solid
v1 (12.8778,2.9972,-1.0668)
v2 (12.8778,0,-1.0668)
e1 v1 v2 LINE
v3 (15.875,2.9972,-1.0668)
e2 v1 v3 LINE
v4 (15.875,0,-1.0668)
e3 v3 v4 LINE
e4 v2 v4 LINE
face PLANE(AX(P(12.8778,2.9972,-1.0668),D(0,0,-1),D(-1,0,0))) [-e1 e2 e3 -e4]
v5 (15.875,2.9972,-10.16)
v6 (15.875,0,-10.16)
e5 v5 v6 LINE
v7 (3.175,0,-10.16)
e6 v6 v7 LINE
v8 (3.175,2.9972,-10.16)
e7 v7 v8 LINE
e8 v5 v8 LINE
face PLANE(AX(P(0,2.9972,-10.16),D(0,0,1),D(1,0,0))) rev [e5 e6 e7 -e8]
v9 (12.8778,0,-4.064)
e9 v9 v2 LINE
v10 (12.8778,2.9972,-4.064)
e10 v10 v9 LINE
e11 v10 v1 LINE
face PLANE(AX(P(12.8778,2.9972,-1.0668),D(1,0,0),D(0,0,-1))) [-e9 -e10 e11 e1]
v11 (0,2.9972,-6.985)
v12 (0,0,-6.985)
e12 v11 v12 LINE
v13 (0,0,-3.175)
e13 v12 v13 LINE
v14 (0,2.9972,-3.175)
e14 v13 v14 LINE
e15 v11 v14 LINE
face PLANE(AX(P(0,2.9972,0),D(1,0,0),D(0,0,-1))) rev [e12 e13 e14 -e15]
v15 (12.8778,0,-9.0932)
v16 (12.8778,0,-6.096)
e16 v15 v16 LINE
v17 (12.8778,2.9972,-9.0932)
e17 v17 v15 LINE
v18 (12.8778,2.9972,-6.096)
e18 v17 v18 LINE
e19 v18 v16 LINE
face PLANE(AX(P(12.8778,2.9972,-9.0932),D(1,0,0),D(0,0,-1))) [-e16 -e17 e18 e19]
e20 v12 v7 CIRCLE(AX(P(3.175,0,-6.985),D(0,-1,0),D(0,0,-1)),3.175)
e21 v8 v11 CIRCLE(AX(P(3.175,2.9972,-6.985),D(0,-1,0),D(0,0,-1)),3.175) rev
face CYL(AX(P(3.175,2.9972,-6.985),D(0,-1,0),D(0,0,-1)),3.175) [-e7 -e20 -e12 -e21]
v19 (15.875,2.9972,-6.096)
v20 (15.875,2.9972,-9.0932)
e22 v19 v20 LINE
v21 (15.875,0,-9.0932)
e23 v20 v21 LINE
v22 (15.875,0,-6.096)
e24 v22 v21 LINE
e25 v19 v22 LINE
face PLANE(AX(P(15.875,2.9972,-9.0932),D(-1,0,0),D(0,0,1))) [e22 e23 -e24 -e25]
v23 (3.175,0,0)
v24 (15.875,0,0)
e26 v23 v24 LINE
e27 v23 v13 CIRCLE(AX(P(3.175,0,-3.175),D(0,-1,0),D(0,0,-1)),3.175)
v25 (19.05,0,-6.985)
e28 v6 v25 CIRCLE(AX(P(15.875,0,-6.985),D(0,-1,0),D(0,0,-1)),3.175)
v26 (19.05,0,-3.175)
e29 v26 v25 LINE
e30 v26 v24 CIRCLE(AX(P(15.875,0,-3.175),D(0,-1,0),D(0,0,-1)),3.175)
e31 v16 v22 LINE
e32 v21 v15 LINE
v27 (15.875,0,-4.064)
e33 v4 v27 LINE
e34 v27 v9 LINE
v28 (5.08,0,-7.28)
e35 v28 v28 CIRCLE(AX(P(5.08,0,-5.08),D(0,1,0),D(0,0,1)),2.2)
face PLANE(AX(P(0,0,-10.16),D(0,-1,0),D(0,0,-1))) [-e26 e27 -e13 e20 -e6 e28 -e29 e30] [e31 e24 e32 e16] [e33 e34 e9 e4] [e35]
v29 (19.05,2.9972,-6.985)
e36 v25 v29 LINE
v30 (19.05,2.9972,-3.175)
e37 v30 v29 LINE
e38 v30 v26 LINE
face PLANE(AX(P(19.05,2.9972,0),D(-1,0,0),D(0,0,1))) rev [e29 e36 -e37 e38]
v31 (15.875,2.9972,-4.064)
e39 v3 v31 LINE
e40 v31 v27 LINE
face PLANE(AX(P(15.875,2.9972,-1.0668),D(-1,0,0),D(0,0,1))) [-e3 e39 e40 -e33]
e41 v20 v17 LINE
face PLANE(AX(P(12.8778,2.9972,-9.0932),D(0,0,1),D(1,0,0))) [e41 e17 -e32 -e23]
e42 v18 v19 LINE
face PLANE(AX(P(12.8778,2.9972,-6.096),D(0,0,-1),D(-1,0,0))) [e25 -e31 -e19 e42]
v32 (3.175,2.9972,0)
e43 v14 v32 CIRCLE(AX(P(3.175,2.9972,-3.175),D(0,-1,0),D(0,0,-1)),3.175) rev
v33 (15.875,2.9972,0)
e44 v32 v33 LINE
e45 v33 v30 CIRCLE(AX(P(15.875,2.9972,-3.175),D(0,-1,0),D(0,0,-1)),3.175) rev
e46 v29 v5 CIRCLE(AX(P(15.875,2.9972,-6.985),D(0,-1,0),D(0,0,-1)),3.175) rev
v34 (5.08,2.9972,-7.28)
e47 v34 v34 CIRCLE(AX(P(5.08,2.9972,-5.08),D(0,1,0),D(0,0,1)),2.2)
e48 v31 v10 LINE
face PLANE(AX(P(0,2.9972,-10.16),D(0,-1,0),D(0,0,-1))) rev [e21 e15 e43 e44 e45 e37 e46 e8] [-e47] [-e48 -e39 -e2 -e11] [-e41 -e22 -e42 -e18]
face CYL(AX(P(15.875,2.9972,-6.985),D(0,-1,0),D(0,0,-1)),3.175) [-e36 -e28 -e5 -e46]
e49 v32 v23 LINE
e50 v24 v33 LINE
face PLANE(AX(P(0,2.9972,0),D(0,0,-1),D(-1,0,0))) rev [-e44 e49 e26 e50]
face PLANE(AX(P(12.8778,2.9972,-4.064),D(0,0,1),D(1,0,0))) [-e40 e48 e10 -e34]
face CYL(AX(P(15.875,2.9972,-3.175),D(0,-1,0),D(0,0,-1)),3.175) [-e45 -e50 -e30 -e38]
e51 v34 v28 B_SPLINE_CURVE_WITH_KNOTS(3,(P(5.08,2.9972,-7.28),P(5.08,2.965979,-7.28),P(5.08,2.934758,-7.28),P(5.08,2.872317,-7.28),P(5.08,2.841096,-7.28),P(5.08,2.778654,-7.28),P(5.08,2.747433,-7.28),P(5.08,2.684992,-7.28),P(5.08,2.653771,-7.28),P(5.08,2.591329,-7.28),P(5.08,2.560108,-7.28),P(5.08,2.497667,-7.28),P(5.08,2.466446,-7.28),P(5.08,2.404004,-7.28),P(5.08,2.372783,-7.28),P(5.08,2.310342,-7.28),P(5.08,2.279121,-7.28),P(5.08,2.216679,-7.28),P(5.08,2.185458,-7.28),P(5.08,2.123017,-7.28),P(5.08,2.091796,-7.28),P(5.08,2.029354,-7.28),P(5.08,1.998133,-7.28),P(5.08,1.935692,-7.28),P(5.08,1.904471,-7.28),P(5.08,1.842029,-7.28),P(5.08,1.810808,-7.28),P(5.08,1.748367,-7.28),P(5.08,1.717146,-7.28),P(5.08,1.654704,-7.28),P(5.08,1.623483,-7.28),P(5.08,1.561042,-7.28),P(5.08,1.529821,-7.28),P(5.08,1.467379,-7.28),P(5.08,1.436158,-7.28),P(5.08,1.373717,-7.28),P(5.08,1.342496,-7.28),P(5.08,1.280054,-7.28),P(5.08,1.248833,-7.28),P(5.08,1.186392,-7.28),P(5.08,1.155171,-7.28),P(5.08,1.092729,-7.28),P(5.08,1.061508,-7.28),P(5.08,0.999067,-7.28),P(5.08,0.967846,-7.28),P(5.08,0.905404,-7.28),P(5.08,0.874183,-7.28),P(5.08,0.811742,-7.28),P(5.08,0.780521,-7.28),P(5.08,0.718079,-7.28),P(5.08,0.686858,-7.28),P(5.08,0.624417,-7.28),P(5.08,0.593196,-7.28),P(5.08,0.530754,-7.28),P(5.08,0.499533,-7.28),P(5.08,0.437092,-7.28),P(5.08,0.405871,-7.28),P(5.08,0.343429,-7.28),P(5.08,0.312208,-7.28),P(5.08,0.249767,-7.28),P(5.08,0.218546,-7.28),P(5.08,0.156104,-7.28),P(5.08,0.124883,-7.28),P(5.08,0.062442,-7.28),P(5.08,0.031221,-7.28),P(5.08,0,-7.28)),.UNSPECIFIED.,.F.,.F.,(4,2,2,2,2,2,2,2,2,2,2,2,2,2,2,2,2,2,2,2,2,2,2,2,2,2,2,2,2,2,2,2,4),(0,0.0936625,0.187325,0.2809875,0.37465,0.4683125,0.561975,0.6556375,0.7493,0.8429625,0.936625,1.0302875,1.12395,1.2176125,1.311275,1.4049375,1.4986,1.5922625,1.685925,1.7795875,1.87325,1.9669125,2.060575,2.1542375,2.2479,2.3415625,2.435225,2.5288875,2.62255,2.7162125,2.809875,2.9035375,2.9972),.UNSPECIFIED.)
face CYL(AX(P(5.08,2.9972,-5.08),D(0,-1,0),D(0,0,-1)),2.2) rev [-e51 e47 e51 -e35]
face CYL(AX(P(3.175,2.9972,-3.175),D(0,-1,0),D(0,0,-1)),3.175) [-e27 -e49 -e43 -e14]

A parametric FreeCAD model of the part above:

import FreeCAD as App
import Part
import Sketcher
from FreeCAD import Vector
Q = App.Units.Quantity


def edges_at(feature, points):
    """Names of the edges that pass closest to the given points."""
    edges = feature.Shape.Edges
    near = lambda p: min(range(len(edges)), key=lambda i: edges[i].distToShape(Part.Vertex(*p))[0])
    return sorted({f"Edge{near(p) + 1}" for p in points})


def add_polygon(sketch, points):
    """Adds a closed chain of lines whose ends are joined by coincident constraints."""
    first, n = sketch.GeometryCount, len(points)
    for a, b in zip(points, points[1:] + points[:1]):
        sketch.addGeometry(Part.LineSegment(App.Vector(*a, 0), App.Vector(*b, 0)), False)
    for i in range(n):
        sketch.addConstraint(Sketcher.Constraint("Coincident", first + i, 2, first + (i + 1) % n, 1))

doc = App.newDocument("Part")
params = doc.addObject("Spreadsheet::Sheet", "Params")
for row, (alias, value) in enumerate([
    ("sketch1_height", "0.4 in"),
    ("sketch1_width", "0.75 in"),
    ("sketch1_width2", "0.118 in"),
    ("pad1_length", "0.118 in"),
    ("fillet_radius", "0.125 in"),
], start=1):
    params.set(f"A{row}", alias)
    params.set(f"B{row}", "=" + value)
    params.setAlias(f"B{row}", alias)

body = doc.addObject("PartDesign::Body", "Body")

sketch1 = doc.addObject("Sketcher::SketchObject", "Sketch")
body.addObject(sketch1)
sketch1.AttachmentSupport = (doc.XZ_Plane, [""])
sketch1.MapMode = "FlatFace"
add_polygon(sketch1, [(0, -10.16), (0, 0), (19.05, 0), (19.05, -10.16)])
add_polygon(sketch1, [(15.875, -1.0668), (12.8778, -1.0668), (12.8778, -4.064), (15.875, -4.064)])
sketch1.addGeometry(Part.Circle(Vector(5.08, -5.08, 0), Vector(0, 0, 1), 2.2), False)
add_polygon(sketch1, [(15.875, -6.096), (12.8778, -6.096), (12.8778, -9.0932), (15.875, -9.0932)])
sketch1.addConstraint([
    Sketcher.Constraint("Vertical", 0),
    Sketcher.Constraint("Horizontal", 1),
    Sketcher.Constraint("Vertical", 2),
    Sketcher.Constraint("Horizontal", 3),
    Sketcher.Constraint("Horizontal", 4),
    Sketcher.Constraint("Vertical", 5),
    Sketcher.Constraint("Horizontal", 6),
    Sketcher.Constraint("Vertical", 7),
    Sketcher.Constraint("Horizontal", 9),
    Sketcher.Constraint("Vertical", 10),
    Sketcher.Constraint("Horizontal", 11),
    Sketcher.Constraint("Vertical", 12),
    Sketcher.Constraint("Coincident", 0, 2, -1, 1),
    Sketcher.Constraint("Vertical", 5, 2, 9, 2),
    Sketcher.Constraint("Vertical", 7, 2, 11, 2),
    Sketcher.Constraint("Equal", 11, 5),
    Sketcher.Constraint("Equal", 7, 10),
    Sketcher.Constraint("DistanceY", 0, 1, 0, 2, Q("0.4 in")),
    Sketcher.Constraint("DistanceX", 1, 1, 1, 2, Q("0.75 in")),
    Sketcher.Constraint("DistanceX", -1, 1, 8, 3, Q("0.2 in")),
    Sketcher.Constraint("DistanceY", 8, 3, -1, 1, Q("0.2 in")),
    Sketcher.Constraint("Diameter", 8, Q("4.4 mm")),
    Sketcher.Constraint("DistanceX", 4, 2, 4, 1, Q("0.118 in")),
    Sketcher.Constraint("DistanceY", 5, 2, -1, 1, Q("0.16 in")),
    Sketcher.Constraint("DistanceY", 9, 2, -1, 1, Q("0.24 in")),
    Sketcher.Constraint("DistanceX", -1, 1, 4, 2, Q("0.507 in")),
])
sketch1.setExpression("Constraints[29]", "Params.sketch1_height")
sketch1.setExpression("Constraints[30]", "Params.sketch1_width")
sketch1.setExpression("Constraints[34]", "Params.sketch1_width2")
pad1 = doc.addObject("PartDesign::Pad", "Pad")
body.addObject(pad1)
pad1.Profile = sketch1
pad1.setExpression("Length", "Params.pad1_length")
pad1.Reversed = True
doc.recompute()

fillet = doc.addObject("PartDesign::Fillet", "Fillet")
body.addObject(fillet)
fillet.Base = (pad1, edges_at(pad1, [
    (0, 1.499, -10.16),
    (19.05, 1.499, -10.16),
    (19.05, 1.499, 0),
    (0, 1.499, 0),
]))
fillet.setExpression("Radius", "Params.fillet_radius")

doc.recompute()
